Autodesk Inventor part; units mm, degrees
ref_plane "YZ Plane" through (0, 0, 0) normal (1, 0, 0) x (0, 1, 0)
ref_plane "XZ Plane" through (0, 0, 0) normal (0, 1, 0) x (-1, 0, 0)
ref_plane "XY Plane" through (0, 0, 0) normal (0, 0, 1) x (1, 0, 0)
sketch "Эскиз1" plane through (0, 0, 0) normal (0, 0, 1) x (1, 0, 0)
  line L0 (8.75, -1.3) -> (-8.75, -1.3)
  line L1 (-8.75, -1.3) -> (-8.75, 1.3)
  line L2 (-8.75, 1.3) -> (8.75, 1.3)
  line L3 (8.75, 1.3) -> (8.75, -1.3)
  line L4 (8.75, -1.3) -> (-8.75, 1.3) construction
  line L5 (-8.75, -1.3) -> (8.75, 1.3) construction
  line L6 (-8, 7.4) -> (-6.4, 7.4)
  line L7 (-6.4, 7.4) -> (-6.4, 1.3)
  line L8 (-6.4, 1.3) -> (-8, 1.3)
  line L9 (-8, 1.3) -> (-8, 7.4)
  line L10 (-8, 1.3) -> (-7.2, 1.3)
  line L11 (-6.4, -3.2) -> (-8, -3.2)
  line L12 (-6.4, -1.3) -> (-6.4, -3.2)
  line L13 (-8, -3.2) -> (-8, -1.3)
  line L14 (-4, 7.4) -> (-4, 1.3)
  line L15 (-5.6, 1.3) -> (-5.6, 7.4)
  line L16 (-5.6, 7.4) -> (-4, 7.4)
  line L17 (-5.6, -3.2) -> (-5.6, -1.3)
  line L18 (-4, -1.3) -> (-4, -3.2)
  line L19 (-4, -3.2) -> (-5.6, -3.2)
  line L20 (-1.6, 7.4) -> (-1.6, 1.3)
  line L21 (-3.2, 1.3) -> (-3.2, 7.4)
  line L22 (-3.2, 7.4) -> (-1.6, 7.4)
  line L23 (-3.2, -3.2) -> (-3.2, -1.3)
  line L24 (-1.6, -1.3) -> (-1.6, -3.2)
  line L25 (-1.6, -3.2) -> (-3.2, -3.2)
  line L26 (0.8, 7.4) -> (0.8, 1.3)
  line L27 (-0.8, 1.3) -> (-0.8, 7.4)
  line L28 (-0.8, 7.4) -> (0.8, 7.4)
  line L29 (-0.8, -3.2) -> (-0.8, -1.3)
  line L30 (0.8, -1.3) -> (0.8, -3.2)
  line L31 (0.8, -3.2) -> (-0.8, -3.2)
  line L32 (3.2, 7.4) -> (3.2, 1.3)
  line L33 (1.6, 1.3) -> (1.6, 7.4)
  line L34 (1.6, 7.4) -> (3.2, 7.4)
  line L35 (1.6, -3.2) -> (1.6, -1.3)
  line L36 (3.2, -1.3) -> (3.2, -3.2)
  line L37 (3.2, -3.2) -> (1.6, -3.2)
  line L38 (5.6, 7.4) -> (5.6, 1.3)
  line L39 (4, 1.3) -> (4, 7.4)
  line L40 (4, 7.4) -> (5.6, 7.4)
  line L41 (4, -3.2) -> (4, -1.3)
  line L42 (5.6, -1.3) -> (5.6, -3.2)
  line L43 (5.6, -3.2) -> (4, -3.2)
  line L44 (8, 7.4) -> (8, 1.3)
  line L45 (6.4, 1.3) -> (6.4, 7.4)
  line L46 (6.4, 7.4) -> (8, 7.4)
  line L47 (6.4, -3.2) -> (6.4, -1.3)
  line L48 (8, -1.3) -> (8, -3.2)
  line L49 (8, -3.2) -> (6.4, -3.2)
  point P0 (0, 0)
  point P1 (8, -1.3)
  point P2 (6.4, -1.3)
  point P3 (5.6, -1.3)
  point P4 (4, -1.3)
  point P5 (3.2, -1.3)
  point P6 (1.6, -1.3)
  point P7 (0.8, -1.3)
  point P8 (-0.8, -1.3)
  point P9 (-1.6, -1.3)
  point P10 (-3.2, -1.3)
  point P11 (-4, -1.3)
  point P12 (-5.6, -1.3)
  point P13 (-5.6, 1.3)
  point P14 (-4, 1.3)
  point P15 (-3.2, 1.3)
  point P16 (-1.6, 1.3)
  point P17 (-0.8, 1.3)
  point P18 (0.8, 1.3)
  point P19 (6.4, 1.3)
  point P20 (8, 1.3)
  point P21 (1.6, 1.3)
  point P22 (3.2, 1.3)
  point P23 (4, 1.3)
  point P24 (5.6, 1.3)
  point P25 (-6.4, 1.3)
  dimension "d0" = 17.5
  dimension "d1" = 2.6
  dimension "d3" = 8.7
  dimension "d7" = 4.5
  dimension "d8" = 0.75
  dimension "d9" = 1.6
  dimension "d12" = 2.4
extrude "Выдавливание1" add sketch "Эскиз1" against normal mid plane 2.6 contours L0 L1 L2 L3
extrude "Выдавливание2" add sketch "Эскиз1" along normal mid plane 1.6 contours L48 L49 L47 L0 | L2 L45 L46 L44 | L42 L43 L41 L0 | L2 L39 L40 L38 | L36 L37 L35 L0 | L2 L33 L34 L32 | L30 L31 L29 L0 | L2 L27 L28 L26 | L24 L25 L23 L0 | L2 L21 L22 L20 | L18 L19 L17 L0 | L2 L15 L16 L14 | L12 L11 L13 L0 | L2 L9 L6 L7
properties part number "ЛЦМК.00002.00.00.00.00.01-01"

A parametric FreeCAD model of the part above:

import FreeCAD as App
import Part
import Sketcher

V = App.Vector
Q = App.Units.Quantity

doc = App.newDocument("Part")
body = doc.addObject("PartDesign::Body", "Body")

sketch1 = body.newObject("Sketcher::SketchObject", "Sketch")
sketch1.AttachmentSupport = (doc.getObject("XY_Plane"), [""])
sketch1.MapMode = "FlatFace"
sketch1.addGeometry(Part.LineSegment(V(-8.8, -1.3, 0), V(8.8, -1.3, 0)), False)
sketch1.addGeometry(Part.LineSegment(V(8.8, -1.3, 0), V(8.8, 1.3, 0)), False)
sketch1.addGeometry(Part.LineSegment(V(8.8, 1.3, 0), V(-8.8, 1.3, 0)), False)
sketch1.addGeometry(Part.LineSegment(V(-8.8, 1.3, 0), V(-8.8, -1.3, 0)), False)
sketch1.addConstraint(Sketcher.Constraint("Coincident", 0, 2, 1, 1))
sketch1.addConstraint(Sketcher.Constraint("Coincident", 1, 2, 2, 1))
sketch1.addConstraint(Sketcher.Constraint("Coincident", 2, 2, 3, 1))
sketch1.addConstraint(Sketcher.Constraint("Coincident", 3, 2, 0, 1))
sketch1.addConstraint(Sketcher.Constraint("Horizontal", 0))
sketch1.addConstraint(Sketcher.Constraint("Vertical", 1))
sketch1.addConstraint(Sketcher.Constraint("Horizontal", 2))
sketch1.addConstraint(Sketcher.Constraint("Vertical", 3))
sketch1.addConstraint(Sketcher.Constraint("Symmetric", 0, 2, 2, 2, -1, 1))
sketch1.addConstraint(Sketcher.Constraint("DistanceX", 0, 1, 0, 2, Q("17.5 mm")))
sketch1.addConstraint(Sketcher.Constraint("DistanceY", 1, 1, 1, 2, Q("2.6 mm")))
pad1 = body.newObject("PartDesign::Pad", "Pad")
pad1.Profile = sketch1
pad1.Length = 2.6
pad1.Midplane = True

sketch2 = body.newObject("Sketcher::SketchObject", "Sketch001")
sketch2.AttachmentSupport = (doc.getObject("XY_Plane"), [""])
sketch2.MapMode = "FlatFace"
sketch2.addGeometry(Part.LineSegment(V(8, -3.2, 0), V(8, -1.3, 0)), False)
sketch2.addGeometry(Part.LineSegment(V(8, -1.3, 0), V(6.4, -1.3, 0)), False)
sketch2.addGeometry(Part.LineSegment(V(6.4, -1.3, 0), V(6.4, -3.2, 0)), False)
sketch2.addGeometry(Part.LineSegment(V(6.4, -3.2, 0), V(8, -3.2, 0)), False)
sketch2.addGeometry(Part.LineSegment(V(6.4, 1.3, 0), V(8, 1.3, 0)), False)
sketch2.addGeometry(Part.LineSegment(V(8, 1.3, 0), V(8, 7.4, 0)), False)
sketch2.addGeometry(Part.LineSegment(V(8, 7.4, 0), V(6.4, 7.4, 0)), False)
sketch2.addGeometry(Part.LineSegment(V(6.4, 7.4, 0), V(6.4, 1.3, 0)), False)
sketch2.addGeometry(Part.LineSegment(V(5.6, -3.2, 0), V(5.6, -1.3, 0)), False)
sketch2.addGeometry(Part.LineSegment(V(5.6, -1.3, 0), V(4, -1.3, 0)), False)
sketch2.addGeometry(Part.LineSegment(V(4, -1.3, 0), V(4, -3.2, 0)), False)
sketch2.addGeometry(Part.LineSegment(V(4, -3.2, 0), V(5.6, -3.2, 0)), False)
sketch2.addGeometry(Part.LineSegment(V(4, 1.3, 0), V(5.6, 1.3, 0)), False)
sketch2.addGeometry(Part.LineSegment(V(5.6, 1.3, 0), V(5.6, 7.4, 0)), False)
sketch2.addGeometry(Part.LineSegment(V(5.6, 7.4, 0), V(4, 7.4, 0)), False)
sketch2.addGeometry(Part.LineSegment(V(4, 7.4, 0), V(4, 1.3, 0)), False)
sketch2.addGeometry(Part.LineSegment(V(3.2, -3.2, 0), V(3.2, -1.3, 0)), False)
sketch2.addGeometry(Part.LineSegment(V(3.2, -1.3, 0), V(1.6, -1.3, 0)), False)
sketch2.addGeometry(Part.LineSegment(V(1.6, -1.3, 0), V(1.6, -3.2, 0)), False)
sketch2.addGeometry(Part.LineSegment(V(1.6, -3.2, 0), V(3.2, -3.2, 0)), False)
sketch2.addGeometry(Part.LineSegment(V(1.6, 1.3, 0), V(3.2, 1.3, 0)), False)
sketch2.addGeometry(Part.LineSegment(V(3.2, 1.3, 0), V(3.2, 7.4, 0)), False)
sketch2.addGeometry(Part.LineSegment(V(3.2, 7.4, 0), V(1.6, 7.4, 0)), False)
sketch2.addGeometry(Part.LineSegment(V(1.6, 7.4, 0), V(1.6, 1.3, 0)), False)
sketch2.addGeometry(Part.LineSegment(V(0.8, -3.2, 0), V(0.8, -1.3, 0)), False)
sketch2.addGeometry(Part.LineSegment(V(0.8, -1.3, 0), V(-0.8, -1.3, 0)), False)
sketch2.addGeometry(Part.LineSegment(V(-0.8, -1.3, 0), V(-0.8, -3.2, 0)), False)
sketch2.addGeometry(Part.LineSegment(V(-0.8, -3.2, 0), V(0.8, -3.2, 0)), False)
sketch2.addGeometry(Part.LineSegment(V(-0.8, 1.3, 0), V(0.8, 1.3, 0)), False)
sketch2.addGeometry(Part.LineSegment(V(0.8, 1.3, 0), V(0.8, 7.4, 0)), False)
sketch2.addGeometry(Part.LineSegment(V(0.8, 7.4, 0), V(-0.8, 7.4, 0)), False)
sketch2.addGeometry(Part.LineSegment(V(-0.8, 7.4, 0), V(-0.8, 1.3, 0)), False)
sketch2.addGeometry(Part.LineSegment(V(-1.6, -3.2, 0), V(-1.6, -1.3, 0)), False)
sketch2.addGeometry(Part.LineSegment(V(-1.6, -1.3, 0), V(-3.2, -1.3, 0)), False)
sketch2.addGeometry(Part.LineSegment(V(-3.2, -1.3, 0), V(-3.2, -3.2, 0)), False)
sketch2.addGeometry(Part.LineSegment(V(-3.2, -3.2, 0), V(-1.6, -3.2, 0)), False)
sketch2.addGeometry(Part.LineSegment(V(-3.2, 1.3, 0), V(-1.6, 1.3, 0)), False)
sketch2.addGeometry(Part.LineSegment(V(-1.6, 1.3, 0), V(-1.6, 7.4, 0)), False)
sketch2.addGeometry(Part.LineSegment(V(-1.6, 7.4, 0), V(-3.2, 7.4, 0)), False)
sketch2.addGeometry(Part.LineSegment(V(-3.2, 7.4, 0), V(-3.2, 1.3, 0)), False)
sketch2.addGeometry(Part.LineSegment(V(-4, -3.2, 0), V(-4, -1.3, 0)), False)
sketch2.addGeometry(Part.LineSegment(V(-4, -1.3, 0), V(-5.6, -1.3, 0)), False)
sketch2.addGeometry(Part.LineSegment(V(-5.6, -1.3, 0), V(-5.6, -3.2, 0)), False)
sketch2.addGeometry(Part.LineSegment(V(-5.6, -3.2, 0), V(-4, -3.2, 0)), False)
sketch2.addGeometry(Part.LineSegment(V(-5.6, 1.3, 0), V(-4, 1.3, 0)), False)
sketch2.addGeometry(Part.LineSegment(V(-4, 1.3, 0), V(-4, 7.4, 0)), False)
sketch2.addGeometry(Part.LineSegment(V(-4, 7.4, 0), V(-5.6, 7.4, 0)), False)
sketch2.addGeometry(Part.LineSegment(V(-5.6, 7.4, 0), V(-5.6, 1.3, 0)), False)
sketch2.addGeometry(Part.LineSegment(V(-6.4, -3.2, 0), V(-6.4, -1.3, 0)), False)
sketch2.addGeometry(Part.LineSegment(V(-6.4, -1.3, 0), V(-8, -1.3, 0)), False)
sketch2.addGeometry(Part.LineSegment(V(-8, -1.3, 0), V(-8, -3.2, 0)), False)
sketch2.addGeometry(Part.LineSegment(V(-8, -3.2, 0), V(-6.4, -3.2, 0)), False)
sketch2.addGeometry(Part.LineSegment(V(-8, 1.3, 0), V(-6.4, 1.3, 0)), False)
sketch2.addGeometry(Part.LineSegment(V(-6.4, 1.3, 0), V(-6.4, 7.4, 0)), False)
sketch2.addGeometry(Part.LineSegment(V(-6.4, 7.4, 0), V(-8, 7.4, 0)), False)
sketch2.addGeometry(Part.LineSegment(V(-8, 7.4, 0), V(-8, 1.3, 0)), False)
sketch2.addConstraint(Sketcher.Constraint("Coincident", 0, 2, 1, 1))
sketch2.addConstraint(Sketcher.Constraint("Coincident", 1, 2, 2, 1))
sketch2.addConstraint(Sketcher.Constraint("Coincident", 2, 2, 3, 1))
sketch2.addConstraint(Sketcher.Constraint("Coincident", 3, 2, 0, 1))
sketch2.addConstraint(Sketcher.Constraint("Coincident", 4, 2, 5, 1))
sketch2.addConstraint(Sketcher.Constraint("Coincident", 5, 2, 6, 1))
sketch2.addConstraint(Sketcher.Constraint("Coincident", 6, 2, 7, 1))
sketch2.addConstraint(Sketcher.Constraint("Coincident", 7, 2, 4, 1))
sketch2.addConstraint(Sketcher.Constraint("Coincident", 8, 2, 9, 1))
sketch2.addConstraint(Sketcher.Constraint("Coincident", 9, 2, 10, 1))
sketch2.addConstraint(Sketcher.Constraint("Coincident", 10, 2, 11, 1))
sketch2.addConstraint(Sketcher.Constraint("Coincident", 11, 2, 8, 1))
sketch2.addConstraint(Sketcher.Constraint("Coincident", 12, 2, 13, 1))
sketch2.addConstraint(Sketcher.Constraint("Coincident", 13, 2, 14, 1))
sketch2.addConstraint(Sketcher.Constraint("Coincident", 14, 2, 15, 1))
sketch2.addConstraint(Sketcher.Constraint("Coincident", 15, 2, 12, 1))
sketch2.addConstraint(Sketcher.Constraint("Coincident", 16, 2, 17, 1))
sketch2.addConstraint(Sketcher.Constraint("Coincident", 17, 2, 18, 1))
sketch2.addConstraint(Sketcher.Constraint("Coincident", 18, 2, 19, 1))
sketch2.addConstraint(Sketcher.Constraint("Coincident", 19, 2, 16, 1))
sketch2.addConstraint(Sketcher.Constraint("Coincident", 20, 2, 21, 1))
sketch2.addConstraint(Sketcher.Constraint("Coincident", 21, 2, 22, 1))
sketch2.addConstraint(Sketcher.Constraint("Coincident", 22, 2, 23, 1))
sketch2.addConstraint(Sketcher.Constraint("Coincident", 23, 2, 20, 1))
sketch2.addConstraint(Sketcher.Constraint("Coincident", 24, 2, 25, 1))
sketch2.addConstraint(Sketcher.Constraint("Coincident", 25, 2, 26, 1))
sketch2.addConstraint(Sketcher.Constraint("Coincident", 26, 2, 27, 1))
sketch2.addConstraint(Sketcher.Constraint("Coincident", 27, 2, 24, 1))
sketch2.addConstraint(Sketcher.Constraint("Coincident", 28, 2, 29, 1))
sketch2.addConstraint(Sketcher.Constraint("Coincident", 29, 2, 30, 1))
sketch2.addConstraint(Sketcher.Constraint("Coincident", 30, 2, 31, 1))
sketch2.addConstraint(Sketcher.Constraint("Coincident", 31, 2, 28, 1))
sketch2.addConstraint(Sketcher.Constraint("Coincident", 32, 2, 33, 1))
sketch2.addConstraint(Sketcher.Constraint("Coincident", 33, 2, 34, 1))
sketch2.addConstraint(Sketcher.Constraint("Coincident", 34, 2, 35, 1))
sketch2.addConstraint(Sketcher.Constraint("Coincident", 35, 2, 32, 1))
sketch2.addConstraint(Sketcher.Constraint("Coincident", 36, 2, 37, 1))
sketch2.addConstraint(Sketcher.Constraint("Coincident", 37, 2, 38, 1))
sketch2.addConstraint(Sketcher.Constraint("Coincident", 38, 2, 39, 1))
sketch2.addConstraint(Sketcher.Constraint("Coincident", 39, 2, 36, 1))
sketch2.addConstraint(Sketcher.Constraint("Coincident", 40, 2, 41, 1))
sketch2.addConstraint(Sketcher.Constraint("Coincident", 41, 2, 42, 1))
sketch2.addConstraint(Sketcher.Constraint("Coincident", 42, 2, 43, 1))
sketch2.addConstraint(Sketcher.Constraint("Coincident", 43, 2, 40, 1))
sketch2.addConstraint(Sketcher.Constraint("Coincident", 44, 2, 45, 1))
sketch2.addConstraint(Sketcher.Constraint("Coincident", 45, 2, 46, 1))
sketch2.addConstraint(Sketcher.Constraint("Coincident", 46, 2, 47, 1))
sketch2.addConstraint(Sketcher.Constraint("Coincident", 47, 2, 44, 1))
sketch2.addConstraint(Sketcher.Constraint("Coincident", 48, 2, 49, 1))
sketch2.addConstraint(Sketcher.Constraint("Coincident", 49, 2, 50, 1))
sketch2.addConstraint(Sketcher.Constraint("Coincident", 50, 2, 51, 1))
sketch2.addConstraint(Sketcher.Constraint("Coincident", 51, 2, 48, 1))
sketch2.addConstraint(Sketcher.Constraint("Coincident", 52, 2, 53, 1))
sketch2.addConstraint(Sketcher.Constraint("Coincident", 53, 2, 54, 1))
sketch2.addConstraint(Sketcher.Constraint("Coincident", 54, 2, 55, 1))
sketch2.addConstraint(Sketcher.Constraint("Coincident", 55, 2, 52, 1))
sketch2.addConstraint(Sketcher.Constraint("Vertical", 0))
sketch2.addConstraint(Sketcher.Constraint("Horizontal", 1))
sketch2.addConstraint(Sketcher.Constraint("Vertical", 2))
sketch2.addConstraint(Sketcher.Constraint("Horizontal", 3))
sketch2.addConstraint(Sketcher.Constraint("Horizontal", 4))
sketch2.addConstraint(Sketcher.Constraint("Vertical", 5))
sketch2.addConstraint(Sketcher.Constraint("Horizontal", 6))
sketch2.addConstraint(Sketcher.Constraint("Vertical", 7))
sketch2.addConstraint(Sketcher.Constraint("Vertical", 8))
sketch2.addConstraint(Sketcher.Constraint("Horizontal", 9))
sketch2.addConstraint(Sketcher.Constraint("Vertical", 10))
sketch2.addConstraint(Sketcher.Constraint("Horizontal", 11))
sketch2.addConstraint(Sketcher.Constraint("Horizontal", 12))
sketch2.addConstraint(Sketcher.Constraint("Vertical", 13))
sketch2.addConstraint(Sketcher.Constraint("Horizontal", 14))
sketch2.addConstraint(Sketcher.Constraint("Vertical", 15))
sketch2.addConstraint(Sketcher.Constraint("Vertical", 16))
sketch2.addConstraint(Sketcher.Constraint("Horizontal", 17))
sketch2.addConstraint(Sketcher.Constraint("Vertical", 18))
sketch2.addConstraint(Sketcher.Constraint("Horizontal", 19))
sketch2.addConstraint(Sketcher.Constraint("Horizontal", 20))
sketch2.addConstraint(Sketcher.Constraint("Vertical", 21))
sketch2.addConstraint(Sketcher.Constraint("Horizontal", 22))
sketch2.addConstraint(Sketcher.Constraint("Vertical", 23))
sketch2.addConstraint(Sketcher.Constraint("Vertical", 24))
sketch2.addConstraint(Sketcher.Constraint("Horizontal", 25))
sketch2.addConstraint(Sketcher.Constraint("Vertical", 26))
sketch2.addConstraint(Sketcher.Constraint("Horizontal", 27))
sketch2.addConstraint(Sketcher.Constraint("Horizontal", 28))
sketch2.addConstraint(Sketcher.Constraint("Vertical", 29))
sketch2.addConstraint(Sketcher.Constraint("Horizontal", 30))
sketch2.addConstraint(Sketcher.Constraint("Vertical", 31))
sketch2.addConstraint(Sketcher.Constraint("Vertical", 32))
sketch2.addConstraint(Sketcher.Constraint("Horizontal", 33))
sketch2.addConstraint(Sketcher.Constraint("Vertical", 34))
sketch2.addConstraint(Sketcher.Constraint("Horizontal", 35))
sketch2.addConstraint(Sketcher.Constraint("Horizontal", 36))
sketch2.addConstraint(Sketcher.Constraint("Vertical", 37))
sketch2.addConstraint(Sketcher.Constraint("Horizontal", 38))
sketch2.addConstraint(Sketcher.Constraint("Vertical", 39))
sketch2.addConstraint(Sketcher.Constraint("Vertical", 40))
sketch2.addConstraint(Sketcher.Constraint("Horizontal", 41))
sketch2.addConstraint(Sketcher.Constraint("Vertical", 42))
sketch2.addConstraint(Sketcher.Constraint("Horizontal", 43))
sketch2.addConstraint(Sketcher.Constraint("Horizontal", 44))
sketch2.addConstraint(Sketcher.Constraint("Vertical", 45))
sketch2.addConstraint(Sketcher.Constraint("Horizontal", 46))
sketch2.addConstraint(Sketcher.Constraint("Vertical", 47))
sketch2.addConstraint(Sketcher.Constraint("Vertical", 48))
sketch2.addConstraint(Sketcher.Constraint("Horizontal", 49))
sketch2.addConstraint(Sketcher.Constraint("Vertical", 50))
sketch2.addConstraint(Sketcher.Constraint("Horizontal", 51))
sketch2.addConstraint(Sketcher.Constraint("Horizontal", 52))
sketch2.addConstraint(Sketcher.Constraint("Vertical", 53))
sketch2.addConstraint(Sketcher.Constraint("Horizontal", 54))
sketch2.addConstraint(Sketcher.Constraint("Vertical", 55))
sketch2.addConstraint(Sketcher.Constraint("Symmetric", 25, 2, 28, 2, -1, 1))
sketch2.addConstraint(Sketcher.Constraint("Symmetric", 23, 2, 32, 2, -1, 1))
sketch2.addConstraint(Sketcher.Constraint("Symmetric", 17, 2, 36, 2, -1, 1))
sketch2.addConstraint(Sketcher.Constraint("Symmetric", 15, 2, 40, 2, -1, 1))
sketch2.addConstraint(Sketcher.Constraint("Symmetric", 9, 2, 44, 2, -1, 1))
sketch2.addConstraint(Sketcher.Constraint("Symmetric", 7, 2, 48, 2, -1, 1))
sketch2.addConstraint(Sketcher.Constraint("Symmetric", 1, 2, 52, 2, -1, 1))
sketch2.addConstraint(Sketcher.Constraint("Symmetric", 17, 2, 32, 2, -2))
sketch2.addConstraint(Sketcher.Constraint("Symmetric", 19, 2, 34, 2, -2))
sketch2.addConstraint(Sketcher.Constraint("Symmetric", 21, 2, 38, 2, -2))
sketch2.addConstraint(Sketcher.Constraint("Symmetric", 9, 2, 40, 2, -2))
sketch2.addConstraint(Sketcher.Constraint("Symmetric", 11, 2, 42, 2, -2))
sketch2.addConstraint(Sketcher.Constraint("Symmetric", 13, 2, 46, 2, -2))
sketch2.addConstraint(Sketcher.Constraint("Symmetric", 1, 2, 48, 2, -2))
sketch2.addConstraint(Sketcher.Constraint("Symmetric", 3, 2, 50, 2, -2))
sketch2.addConstraint(Sketcher.Constraint("Symmetric", 5, 2, 54, 2, -2))
sketch2.addConstraint(Sketcher.Constraint("Horizontal", 1, 2, 8, 2))
sketch2.addConstraint(Sketcher.Constraint("Horizontal", 3, 2, 10, 2))
sketch2.addConstraint(Sketcher.Constraint("Horizontal", 6, 2, 13, 2))
sketch2.addConstraint(Sketcher.Constraint("Horizontal", 9, 2, 16, 2))
sketch2.addConstraint(Sketcher.Constraint("Horizontal", 11, 2, 18, 2))
sketch2.addConstraint(Sketcher.Constraint("Horizontal", 14, 2, 21, 2))
sketch2.addConstraint(Sketcher.Constraint("Horizontal", 17, 2, 24, 2))
sketch2.addConstraint(Sketcher.Constraint("Horizontal", 19, 2, 26, 2))
sketch2.addConstraint(Sketcher.Constraint("Horizontal", 22, 2, 29, 2))
sketch2.addConstraint(Sketcher.Constraint("Vertical", 3, 2, 4, 2))
sketch2.addConstraint(Sketcher.Constraint("Vertical", 11, 2, 12, 2))
sketch2.addConstraint(Sketcher.Constraint("Vertical", 19, 2, 20, 2))
sketch2.addConstraint(Sketcher.Constraint("Vertical", 27, 2, 28, 2))
sketch2.addConstraint(Sketcher.Constraint("Vertical", 26, 2, 30, 2))
sketch2.addConstraint(Sketcher.Constraint("Equal", 6, 9))
sketch2.addConstraint(Sketcher.Constraint("Equal", 14, 17))
sketch2.addConstraint(Sketcher.Constraint("Equal", 22, 25))
sketch2.addConstraint(Sketcher.Constraint("DistanceX", 1, 2, 1, 1, Q("1.6 mm")))
sketch2.addConstraint(Sketcher.Constraint("DistanceX", -1, 1, 17, 2, Q("1.6 mm")))
sketch2.addConstraint(Sketcher.Constraint("DistanceY", 0, 2, 4, 2, Q("2.6 mm")))
sketch2.addConstraint(Sketcher.Constraint("DistanceY", 3, 2, 4, 2, Q("4.5 mm")))
sketch2.addConstraint(Sketcher.Constraint("DistanceY", 0, 2, 5, 2, Q("8.7 mm")))
sketch2.addConstraint(Sketcher.Constraint("DistanceX", 8, 2, 0, 2, Q("2.4 mm")))
sketch2.addConstraint(Sketcher.Constraint("DistanceX", 16, 2, 8, 2, Q("2.4 mm")))
pad2 = body.newObject("PartDesign::Pad", "Pad001")
pad2.Profile = sketch2
pad2.Length = 1.6
pad2.Midplane = True

doc.recompute()
